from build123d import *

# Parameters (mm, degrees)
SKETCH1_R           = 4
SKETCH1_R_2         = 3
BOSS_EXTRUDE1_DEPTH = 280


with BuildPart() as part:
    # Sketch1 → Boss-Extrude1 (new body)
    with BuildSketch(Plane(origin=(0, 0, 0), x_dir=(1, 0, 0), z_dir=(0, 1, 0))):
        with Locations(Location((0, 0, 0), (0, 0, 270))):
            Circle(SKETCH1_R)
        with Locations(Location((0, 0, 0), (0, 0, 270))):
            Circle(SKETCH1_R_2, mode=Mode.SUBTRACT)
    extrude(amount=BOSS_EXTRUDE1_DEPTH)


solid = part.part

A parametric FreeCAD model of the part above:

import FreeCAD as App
import Part
import Sketcher

V = App.Vector
Q = App.Units.Quantity

doc = App.newDocument("Part")
body = doc.addObject("PartDesign::Body", "Body")

sketch1 = body.newObject("Sketcher::SketchObject", "Sketch")
sketch1.AttachmentSupport = (doc.getObject("XZ_Plane"), [""])
sketch1.MapMode = "FlatFace"
sketch1.addGeometry([
    Part.Circle(V(0, 0, 0), V(0, 0, 1), 4),
    Part.Circle(V(0, 0, 0), V(0, 0, 1), 3),
], False)
sketch1.addConstraint([
    Sketcher.Constraint("Coincident", 0, 3, -1, 1),
    Sketcher.Constraint("Coincident", 1, 3, -1, 1),
    Sketcher.Constraint("Diameter", 0, Q("8 mm")),
    Sketcher.Constraint("Diameter", 1, Q("6 mm")),
])
pad1 = body.newObject("PartDesign::Pad", "Pad")
pad1.Profile = sketch1
pad1.Length = 280
pad1.Reversed = True

doc.recompute()
